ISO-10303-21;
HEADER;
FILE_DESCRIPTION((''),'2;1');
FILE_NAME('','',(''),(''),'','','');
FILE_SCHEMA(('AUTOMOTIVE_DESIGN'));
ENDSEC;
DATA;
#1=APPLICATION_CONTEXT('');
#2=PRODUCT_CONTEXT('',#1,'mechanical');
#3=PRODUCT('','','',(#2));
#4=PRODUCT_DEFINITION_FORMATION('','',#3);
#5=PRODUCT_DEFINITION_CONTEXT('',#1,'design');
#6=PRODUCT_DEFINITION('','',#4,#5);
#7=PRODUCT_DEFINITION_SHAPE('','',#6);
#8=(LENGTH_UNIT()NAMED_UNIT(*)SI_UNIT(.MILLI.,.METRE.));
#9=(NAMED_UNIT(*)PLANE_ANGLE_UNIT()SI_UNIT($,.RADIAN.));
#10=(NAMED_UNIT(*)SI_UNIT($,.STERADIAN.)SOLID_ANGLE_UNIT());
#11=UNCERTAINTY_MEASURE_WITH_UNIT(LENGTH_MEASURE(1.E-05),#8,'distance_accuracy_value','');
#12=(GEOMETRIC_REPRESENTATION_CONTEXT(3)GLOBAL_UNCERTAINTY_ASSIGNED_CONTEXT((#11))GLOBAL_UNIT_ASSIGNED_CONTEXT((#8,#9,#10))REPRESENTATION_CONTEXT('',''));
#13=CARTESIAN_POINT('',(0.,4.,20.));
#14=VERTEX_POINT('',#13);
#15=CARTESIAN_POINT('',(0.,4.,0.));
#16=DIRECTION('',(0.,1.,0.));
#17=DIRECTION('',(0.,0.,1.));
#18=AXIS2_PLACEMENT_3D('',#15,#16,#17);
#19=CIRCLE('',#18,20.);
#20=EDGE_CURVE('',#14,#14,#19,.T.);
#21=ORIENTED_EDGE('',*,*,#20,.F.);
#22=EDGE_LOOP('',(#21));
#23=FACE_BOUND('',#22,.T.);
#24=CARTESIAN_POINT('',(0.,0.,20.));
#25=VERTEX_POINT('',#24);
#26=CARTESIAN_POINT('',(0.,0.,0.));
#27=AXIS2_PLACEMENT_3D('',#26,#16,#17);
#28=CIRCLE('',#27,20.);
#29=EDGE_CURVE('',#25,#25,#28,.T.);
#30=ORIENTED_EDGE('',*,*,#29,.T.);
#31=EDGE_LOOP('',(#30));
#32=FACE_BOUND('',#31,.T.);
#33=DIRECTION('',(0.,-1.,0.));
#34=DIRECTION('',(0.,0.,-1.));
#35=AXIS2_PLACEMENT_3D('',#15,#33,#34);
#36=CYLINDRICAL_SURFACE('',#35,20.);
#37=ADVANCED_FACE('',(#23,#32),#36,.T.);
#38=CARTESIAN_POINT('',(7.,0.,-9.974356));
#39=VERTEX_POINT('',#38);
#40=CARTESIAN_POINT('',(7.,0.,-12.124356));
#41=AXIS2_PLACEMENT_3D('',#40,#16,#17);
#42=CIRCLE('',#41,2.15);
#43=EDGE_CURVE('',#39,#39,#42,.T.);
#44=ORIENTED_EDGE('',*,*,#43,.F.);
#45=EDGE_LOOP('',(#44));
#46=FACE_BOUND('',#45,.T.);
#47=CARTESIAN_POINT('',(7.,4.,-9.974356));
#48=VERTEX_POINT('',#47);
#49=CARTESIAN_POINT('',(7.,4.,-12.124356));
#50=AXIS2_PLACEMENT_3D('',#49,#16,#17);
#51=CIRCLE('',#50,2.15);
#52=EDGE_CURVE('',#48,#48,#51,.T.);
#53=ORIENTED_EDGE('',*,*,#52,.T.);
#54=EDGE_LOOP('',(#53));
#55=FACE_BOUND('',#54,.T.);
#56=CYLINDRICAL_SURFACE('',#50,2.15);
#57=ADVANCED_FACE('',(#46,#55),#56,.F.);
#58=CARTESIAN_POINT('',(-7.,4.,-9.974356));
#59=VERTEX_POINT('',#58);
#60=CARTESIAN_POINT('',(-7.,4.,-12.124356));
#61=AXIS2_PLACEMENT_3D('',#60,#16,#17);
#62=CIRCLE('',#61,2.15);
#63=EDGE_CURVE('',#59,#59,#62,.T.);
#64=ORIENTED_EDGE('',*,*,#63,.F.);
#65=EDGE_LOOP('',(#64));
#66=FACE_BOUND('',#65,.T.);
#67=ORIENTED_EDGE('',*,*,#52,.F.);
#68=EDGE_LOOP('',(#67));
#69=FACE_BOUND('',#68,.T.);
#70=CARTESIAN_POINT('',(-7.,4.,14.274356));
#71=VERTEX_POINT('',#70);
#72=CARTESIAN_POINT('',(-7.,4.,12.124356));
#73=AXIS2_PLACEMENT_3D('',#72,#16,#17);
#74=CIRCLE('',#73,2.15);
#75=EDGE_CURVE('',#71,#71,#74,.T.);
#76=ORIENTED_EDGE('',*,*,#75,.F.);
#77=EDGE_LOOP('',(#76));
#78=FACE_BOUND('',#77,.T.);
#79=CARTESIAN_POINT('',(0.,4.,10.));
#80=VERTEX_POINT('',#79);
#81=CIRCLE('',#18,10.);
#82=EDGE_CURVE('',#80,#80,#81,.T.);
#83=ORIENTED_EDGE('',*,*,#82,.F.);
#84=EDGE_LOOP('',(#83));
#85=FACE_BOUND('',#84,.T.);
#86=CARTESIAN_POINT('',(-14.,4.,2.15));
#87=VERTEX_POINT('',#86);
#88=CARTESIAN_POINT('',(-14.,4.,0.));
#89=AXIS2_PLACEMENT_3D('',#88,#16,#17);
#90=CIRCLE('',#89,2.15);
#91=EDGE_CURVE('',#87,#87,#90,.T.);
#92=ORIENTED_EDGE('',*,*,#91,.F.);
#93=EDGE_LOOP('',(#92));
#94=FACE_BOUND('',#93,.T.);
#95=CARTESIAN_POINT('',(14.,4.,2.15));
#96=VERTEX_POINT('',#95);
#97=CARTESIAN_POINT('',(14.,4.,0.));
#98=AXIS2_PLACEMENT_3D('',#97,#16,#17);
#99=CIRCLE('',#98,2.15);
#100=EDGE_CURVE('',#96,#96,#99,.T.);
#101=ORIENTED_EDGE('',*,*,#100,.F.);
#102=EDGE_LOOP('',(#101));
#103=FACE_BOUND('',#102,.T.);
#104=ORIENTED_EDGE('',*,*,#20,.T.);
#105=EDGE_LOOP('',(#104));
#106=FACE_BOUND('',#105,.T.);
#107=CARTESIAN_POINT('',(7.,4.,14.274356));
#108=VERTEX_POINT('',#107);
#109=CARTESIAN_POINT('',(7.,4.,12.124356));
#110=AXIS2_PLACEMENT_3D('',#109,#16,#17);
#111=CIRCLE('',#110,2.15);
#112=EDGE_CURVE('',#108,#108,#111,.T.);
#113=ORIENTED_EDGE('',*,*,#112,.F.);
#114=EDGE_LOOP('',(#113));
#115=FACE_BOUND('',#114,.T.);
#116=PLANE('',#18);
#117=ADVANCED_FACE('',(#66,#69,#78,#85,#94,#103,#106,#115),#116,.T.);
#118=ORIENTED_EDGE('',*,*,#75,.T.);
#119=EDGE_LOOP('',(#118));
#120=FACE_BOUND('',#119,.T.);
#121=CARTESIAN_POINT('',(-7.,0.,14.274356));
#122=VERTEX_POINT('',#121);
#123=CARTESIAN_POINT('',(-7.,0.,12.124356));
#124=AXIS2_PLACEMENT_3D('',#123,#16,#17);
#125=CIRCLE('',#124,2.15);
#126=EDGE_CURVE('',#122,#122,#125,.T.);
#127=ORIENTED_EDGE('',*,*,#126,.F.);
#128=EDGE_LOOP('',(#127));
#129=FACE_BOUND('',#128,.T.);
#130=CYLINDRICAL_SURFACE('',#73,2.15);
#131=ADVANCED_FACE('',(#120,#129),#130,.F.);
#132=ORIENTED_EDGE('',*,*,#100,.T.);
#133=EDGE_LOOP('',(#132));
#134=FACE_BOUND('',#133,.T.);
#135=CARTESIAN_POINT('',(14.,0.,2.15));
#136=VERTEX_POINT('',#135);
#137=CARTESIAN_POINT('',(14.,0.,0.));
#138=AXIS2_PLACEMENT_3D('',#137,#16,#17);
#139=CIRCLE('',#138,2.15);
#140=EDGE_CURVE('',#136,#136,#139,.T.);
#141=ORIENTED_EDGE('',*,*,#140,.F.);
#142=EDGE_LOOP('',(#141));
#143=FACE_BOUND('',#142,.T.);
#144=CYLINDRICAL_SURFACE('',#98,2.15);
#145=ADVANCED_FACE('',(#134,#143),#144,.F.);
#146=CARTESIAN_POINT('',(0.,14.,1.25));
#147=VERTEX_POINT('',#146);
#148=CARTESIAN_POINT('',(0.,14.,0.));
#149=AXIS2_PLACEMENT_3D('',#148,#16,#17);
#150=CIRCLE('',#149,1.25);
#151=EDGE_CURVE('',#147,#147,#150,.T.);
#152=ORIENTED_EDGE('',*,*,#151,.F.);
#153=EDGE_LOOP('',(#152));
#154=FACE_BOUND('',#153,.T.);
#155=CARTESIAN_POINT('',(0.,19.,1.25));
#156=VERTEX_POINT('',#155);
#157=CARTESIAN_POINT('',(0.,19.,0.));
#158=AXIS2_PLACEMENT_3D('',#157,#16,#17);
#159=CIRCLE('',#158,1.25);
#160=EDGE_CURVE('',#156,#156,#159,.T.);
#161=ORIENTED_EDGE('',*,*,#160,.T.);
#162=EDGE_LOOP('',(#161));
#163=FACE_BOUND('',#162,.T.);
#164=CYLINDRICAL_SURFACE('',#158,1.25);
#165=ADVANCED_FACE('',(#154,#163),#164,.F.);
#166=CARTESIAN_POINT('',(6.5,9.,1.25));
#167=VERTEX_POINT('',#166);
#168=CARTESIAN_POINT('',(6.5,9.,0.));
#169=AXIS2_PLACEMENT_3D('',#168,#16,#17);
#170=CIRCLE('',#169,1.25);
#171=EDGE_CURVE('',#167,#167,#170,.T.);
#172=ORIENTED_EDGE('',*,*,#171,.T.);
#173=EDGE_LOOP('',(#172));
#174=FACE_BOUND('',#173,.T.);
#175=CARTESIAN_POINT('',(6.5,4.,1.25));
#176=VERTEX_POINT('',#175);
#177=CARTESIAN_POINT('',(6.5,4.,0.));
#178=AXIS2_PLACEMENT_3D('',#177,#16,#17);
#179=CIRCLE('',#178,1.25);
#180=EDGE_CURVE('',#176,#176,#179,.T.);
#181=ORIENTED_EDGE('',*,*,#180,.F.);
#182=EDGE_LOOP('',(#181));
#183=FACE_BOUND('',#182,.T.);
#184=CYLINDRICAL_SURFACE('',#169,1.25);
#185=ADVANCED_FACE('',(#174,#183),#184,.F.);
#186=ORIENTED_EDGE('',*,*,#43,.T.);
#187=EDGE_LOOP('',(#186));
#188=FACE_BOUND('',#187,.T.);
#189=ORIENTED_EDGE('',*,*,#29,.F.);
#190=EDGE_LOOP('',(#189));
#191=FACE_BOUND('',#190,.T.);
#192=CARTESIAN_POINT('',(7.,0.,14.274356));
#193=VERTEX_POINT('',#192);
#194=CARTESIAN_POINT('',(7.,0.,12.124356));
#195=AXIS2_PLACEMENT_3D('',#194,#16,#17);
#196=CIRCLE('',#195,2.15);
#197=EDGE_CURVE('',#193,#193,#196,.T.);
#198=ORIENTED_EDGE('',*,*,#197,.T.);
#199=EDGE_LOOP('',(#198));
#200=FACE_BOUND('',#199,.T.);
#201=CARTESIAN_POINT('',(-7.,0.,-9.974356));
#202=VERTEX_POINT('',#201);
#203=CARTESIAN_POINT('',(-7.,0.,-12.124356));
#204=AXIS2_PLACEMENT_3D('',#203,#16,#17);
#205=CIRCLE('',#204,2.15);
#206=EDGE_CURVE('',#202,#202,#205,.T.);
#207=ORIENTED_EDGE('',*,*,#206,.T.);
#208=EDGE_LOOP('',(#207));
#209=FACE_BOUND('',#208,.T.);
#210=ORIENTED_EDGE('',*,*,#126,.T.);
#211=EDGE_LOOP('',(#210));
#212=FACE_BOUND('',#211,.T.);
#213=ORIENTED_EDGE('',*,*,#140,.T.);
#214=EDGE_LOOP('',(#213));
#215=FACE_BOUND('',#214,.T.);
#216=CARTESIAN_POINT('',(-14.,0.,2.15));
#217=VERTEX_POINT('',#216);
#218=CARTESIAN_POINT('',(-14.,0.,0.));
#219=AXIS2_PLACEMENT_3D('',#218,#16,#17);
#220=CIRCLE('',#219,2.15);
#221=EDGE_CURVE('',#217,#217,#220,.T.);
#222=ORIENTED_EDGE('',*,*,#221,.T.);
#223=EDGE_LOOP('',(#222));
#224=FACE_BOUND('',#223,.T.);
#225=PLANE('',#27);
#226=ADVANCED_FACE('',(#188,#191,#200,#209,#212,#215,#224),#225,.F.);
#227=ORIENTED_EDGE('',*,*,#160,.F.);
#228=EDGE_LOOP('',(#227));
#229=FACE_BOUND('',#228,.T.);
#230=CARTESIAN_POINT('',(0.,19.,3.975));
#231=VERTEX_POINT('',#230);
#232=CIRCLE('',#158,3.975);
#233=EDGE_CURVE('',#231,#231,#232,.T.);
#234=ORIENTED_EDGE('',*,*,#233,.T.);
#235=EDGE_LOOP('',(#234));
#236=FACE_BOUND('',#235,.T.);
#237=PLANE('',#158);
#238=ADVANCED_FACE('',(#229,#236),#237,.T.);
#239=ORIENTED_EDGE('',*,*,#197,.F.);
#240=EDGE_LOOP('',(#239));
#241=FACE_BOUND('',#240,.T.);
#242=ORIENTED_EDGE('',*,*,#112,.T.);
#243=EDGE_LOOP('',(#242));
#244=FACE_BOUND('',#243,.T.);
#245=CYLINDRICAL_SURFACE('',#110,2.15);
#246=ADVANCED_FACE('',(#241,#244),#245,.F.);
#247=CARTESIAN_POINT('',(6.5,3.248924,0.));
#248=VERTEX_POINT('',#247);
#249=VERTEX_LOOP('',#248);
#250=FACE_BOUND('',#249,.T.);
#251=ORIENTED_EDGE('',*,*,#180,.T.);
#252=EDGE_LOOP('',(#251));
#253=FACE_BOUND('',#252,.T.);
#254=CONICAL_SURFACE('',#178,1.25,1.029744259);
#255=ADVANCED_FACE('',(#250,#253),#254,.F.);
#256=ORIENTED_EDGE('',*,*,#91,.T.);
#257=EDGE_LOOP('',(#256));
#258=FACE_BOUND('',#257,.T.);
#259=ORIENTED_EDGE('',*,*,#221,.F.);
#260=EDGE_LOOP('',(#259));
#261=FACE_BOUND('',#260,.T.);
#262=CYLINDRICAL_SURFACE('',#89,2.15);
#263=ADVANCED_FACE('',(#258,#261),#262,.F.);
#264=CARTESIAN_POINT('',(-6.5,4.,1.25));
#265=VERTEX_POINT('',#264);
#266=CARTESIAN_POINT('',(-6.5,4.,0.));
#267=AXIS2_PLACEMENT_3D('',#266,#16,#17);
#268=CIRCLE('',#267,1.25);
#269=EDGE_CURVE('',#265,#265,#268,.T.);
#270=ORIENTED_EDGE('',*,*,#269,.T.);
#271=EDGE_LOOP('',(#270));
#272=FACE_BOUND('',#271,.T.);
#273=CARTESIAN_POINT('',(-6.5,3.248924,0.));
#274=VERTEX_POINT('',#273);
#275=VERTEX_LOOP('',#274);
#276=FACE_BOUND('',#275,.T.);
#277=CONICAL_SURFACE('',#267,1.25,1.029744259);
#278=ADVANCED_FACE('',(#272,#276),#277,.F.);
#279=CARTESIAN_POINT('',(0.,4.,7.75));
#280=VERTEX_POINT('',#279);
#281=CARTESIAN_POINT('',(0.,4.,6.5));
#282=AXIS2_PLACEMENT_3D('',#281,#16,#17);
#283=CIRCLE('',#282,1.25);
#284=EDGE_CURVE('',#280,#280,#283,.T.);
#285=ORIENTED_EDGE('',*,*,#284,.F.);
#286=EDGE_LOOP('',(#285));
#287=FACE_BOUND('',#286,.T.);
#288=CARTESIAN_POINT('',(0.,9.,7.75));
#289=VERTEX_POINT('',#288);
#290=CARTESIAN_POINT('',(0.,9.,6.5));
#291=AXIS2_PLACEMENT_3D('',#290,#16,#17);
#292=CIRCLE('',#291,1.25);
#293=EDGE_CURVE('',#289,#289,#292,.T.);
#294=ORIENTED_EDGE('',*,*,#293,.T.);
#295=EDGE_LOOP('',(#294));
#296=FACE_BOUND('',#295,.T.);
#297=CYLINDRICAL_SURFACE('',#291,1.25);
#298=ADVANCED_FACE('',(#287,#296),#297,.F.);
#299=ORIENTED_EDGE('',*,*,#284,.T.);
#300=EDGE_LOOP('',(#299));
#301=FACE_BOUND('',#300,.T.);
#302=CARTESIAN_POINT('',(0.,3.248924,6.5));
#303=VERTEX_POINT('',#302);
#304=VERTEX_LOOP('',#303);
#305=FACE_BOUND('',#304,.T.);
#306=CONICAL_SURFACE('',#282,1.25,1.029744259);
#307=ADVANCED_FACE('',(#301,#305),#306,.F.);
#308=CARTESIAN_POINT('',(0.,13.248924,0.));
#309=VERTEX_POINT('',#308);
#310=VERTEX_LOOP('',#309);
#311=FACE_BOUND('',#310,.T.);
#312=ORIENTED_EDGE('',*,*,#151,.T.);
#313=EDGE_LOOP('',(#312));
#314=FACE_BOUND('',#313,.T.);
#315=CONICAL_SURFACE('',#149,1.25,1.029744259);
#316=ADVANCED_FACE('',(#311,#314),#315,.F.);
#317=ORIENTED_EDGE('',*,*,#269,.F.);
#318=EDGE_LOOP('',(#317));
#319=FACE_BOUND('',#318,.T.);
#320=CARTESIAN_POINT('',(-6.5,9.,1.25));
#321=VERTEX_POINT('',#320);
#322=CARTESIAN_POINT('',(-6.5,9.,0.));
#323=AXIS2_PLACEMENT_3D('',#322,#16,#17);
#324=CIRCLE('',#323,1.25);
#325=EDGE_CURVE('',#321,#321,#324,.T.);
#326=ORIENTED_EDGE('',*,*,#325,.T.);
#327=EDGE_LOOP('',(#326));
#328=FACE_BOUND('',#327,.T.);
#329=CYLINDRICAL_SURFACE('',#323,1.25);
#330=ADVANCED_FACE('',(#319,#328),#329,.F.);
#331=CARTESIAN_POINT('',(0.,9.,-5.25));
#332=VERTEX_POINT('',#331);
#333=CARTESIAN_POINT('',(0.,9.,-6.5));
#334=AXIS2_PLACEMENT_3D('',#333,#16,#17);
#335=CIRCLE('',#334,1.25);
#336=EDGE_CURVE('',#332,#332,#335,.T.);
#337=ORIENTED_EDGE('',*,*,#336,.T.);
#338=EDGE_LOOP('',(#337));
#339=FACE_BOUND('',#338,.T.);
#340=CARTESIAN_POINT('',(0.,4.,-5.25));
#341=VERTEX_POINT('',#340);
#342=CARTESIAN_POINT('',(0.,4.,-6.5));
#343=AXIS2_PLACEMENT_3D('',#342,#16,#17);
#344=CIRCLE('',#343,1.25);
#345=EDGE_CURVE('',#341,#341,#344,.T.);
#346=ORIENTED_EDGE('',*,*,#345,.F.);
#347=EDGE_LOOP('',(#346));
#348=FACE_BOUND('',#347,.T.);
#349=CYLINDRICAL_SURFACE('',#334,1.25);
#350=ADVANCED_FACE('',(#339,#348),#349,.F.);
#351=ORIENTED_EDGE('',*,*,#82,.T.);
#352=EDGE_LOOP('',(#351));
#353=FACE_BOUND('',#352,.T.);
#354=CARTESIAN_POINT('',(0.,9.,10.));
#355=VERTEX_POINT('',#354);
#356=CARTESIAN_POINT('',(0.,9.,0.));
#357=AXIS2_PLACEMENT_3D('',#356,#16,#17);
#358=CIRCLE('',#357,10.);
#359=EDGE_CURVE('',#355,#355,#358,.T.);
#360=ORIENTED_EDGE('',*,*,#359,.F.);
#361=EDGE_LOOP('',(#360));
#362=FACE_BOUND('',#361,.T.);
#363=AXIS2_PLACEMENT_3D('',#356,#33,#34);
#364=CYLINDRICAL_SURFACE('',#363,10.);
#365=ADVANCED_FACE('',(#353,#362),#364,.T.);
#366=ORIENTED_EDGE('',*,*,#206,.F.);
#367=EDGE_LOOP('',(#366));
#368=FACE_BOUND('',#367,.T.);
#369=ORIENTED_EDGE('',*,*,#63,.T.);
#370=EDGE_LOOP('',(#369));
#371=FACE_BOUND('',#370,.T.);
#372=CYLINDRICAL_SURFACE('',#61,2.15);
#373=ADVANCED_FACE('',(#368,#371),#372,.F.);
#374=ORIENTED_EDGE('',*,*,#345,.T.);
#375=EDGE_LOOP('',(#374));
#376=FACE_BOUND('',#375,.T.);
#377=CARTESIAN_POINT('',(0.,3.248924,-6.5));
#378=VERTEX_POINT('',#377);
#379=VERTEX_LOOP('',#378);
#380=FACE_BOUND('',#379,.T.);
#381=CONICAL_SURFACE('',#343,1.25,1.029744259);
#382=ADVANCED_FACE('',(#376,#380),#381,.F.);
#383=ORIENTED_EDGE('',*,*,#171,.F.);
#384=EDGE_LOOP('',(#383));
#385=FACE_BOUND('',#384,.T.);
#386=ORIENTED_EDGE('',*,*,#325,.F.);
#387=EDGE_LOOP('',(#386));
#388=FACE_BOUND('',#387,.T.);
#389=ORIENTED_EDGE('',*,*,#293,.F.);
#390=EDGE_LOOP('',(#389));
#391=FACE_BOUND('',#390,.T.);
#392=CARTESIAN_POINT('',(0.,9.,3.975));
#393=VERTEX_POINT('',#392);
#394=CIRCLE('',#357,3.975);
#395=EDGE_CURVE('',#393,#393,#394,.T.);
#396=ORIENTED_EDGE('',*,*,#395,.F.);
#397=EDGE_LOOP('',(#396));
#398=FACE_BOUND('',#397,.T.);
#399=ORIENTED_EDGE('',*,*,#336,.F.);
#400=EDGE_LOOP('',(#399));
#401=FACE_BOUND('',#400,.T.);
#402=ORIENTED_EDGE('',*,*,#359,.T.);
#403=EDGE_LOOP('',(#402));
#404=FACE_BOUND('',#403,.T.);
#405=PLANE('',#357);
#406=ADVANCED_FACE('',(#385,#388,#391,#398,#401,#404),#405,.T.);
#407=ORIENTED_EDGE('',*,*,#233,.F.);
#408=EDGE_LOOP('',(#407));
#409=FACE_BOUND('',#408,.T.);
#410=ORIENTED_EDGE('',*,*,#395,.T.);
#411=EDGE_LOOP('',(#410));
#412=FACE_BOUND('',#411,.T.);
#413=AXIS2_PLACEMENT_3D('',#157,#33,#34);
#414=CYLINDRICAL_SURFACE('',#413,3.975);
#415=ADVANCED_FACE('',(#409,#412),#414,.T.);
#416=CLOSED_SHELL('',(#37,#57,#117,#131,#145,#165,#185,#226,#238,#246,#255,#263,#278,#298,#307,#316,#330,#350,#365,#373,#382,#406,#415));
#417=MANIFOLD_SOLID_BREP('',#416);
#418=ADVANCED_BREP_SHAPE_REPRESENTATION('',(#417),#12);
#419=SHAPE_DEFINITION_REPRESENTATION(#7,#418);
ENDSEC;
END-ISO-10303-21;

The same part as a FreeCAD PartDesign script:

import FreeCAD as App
import Part
import Sketcher

doc = App.newDocument("Part")
body = doc.addObject("PartDesign::Body", "Body")

# Sketch on XZ plane
sketch1 = body.newObject("Sketcher::SketchObject", "Sketch")
sketch1.AttachmentSupport = (doc.getObject("XZ_Plane"), [""])
sketch1.MapMode = "FlatFace"
sketch1.addGeometry(Part.Circle(App.Vector(0, 0, 0), App.Vector(0, 0, 1), 20), False)
sketch1.addConstraint(Sketcher.Constraint("Coincident", 0, 3, -1, 1))
sketch1.addConstraint(Sketcher.Constraint("Diameter", 0, 40.0))
pad1 = body.newObject("PartDesign::Pad", "Pad")
pad1.Profile = sketch1
pad1.Length = 4
pad1.Reversed = True

# Sketch on XZ plane
sketch2 = body.newObject("Sketcher::SketchObject", "Sketch001")
sketch2.AttachmentSupport = (doc.getObject("XZ_Plane"), [""])
sketch2.MapMode = "FlatFace"
sketch2.AttachmentOffset = App.Placement(App.Vector(0, 0, -4), App.Rotation())
sketch2.addGeometry(Part.Circle(App.Vector(0, 0, 0), App.Vector(0, 0, 1), 10), False)
sketch2.addConstraint(Sketcher.Constraint("Coincident", 0, 3, -1, 1))
sketch2.addConstraint(Sketcher.Constraint("Diameter", 0, 20.0))
pad2 = body.newObject("PartDesign::Pad", "Pad001")
pad2.Profile = sketch2
pad2.Length = 5
pad2.Reversed = True

# Sketch on XZ plane
sketch3 = body.newObject("Sketcher::SketchObject", "Sketch002")
sketch3.AttachmentSupport = (doc.getObject("XZ_Plane"), [""])
sketch3.MapMode = "FlatFace"
sketch3.AttachmentOffset = App.Placement(App.Vector(0, 0, -9), App.Rotation())
sketch3.addGeometry(Part.Circle(App.Vector(0, 0, 0), App.Vector(0, 0, 1), 4), False)
sketch3.addConstraint(Sketcher.Constraint("Coincident", 0, 3, -1, 1))
sketch3.addConstraint(Sketcher.Constraint("Diameter", 0, 7.95))
pad3 = body.newObject("PartDesign::Pad", "Pad002")
pad3.Profile = sketch3
pad3.Length = 10
pad3.Reversed = True

# Sketch on XZ plane
sketch4 = body.newObject("Sketcher::SketchObject", "Sketch003")
sketch4.AttachmentSupport = (doc.getObject("XZ_Plane"), [""])
sketch4.MapMode = "FlatFace"
sketch4.AttachmentOffset = App.Placement(App.Vector(0, 0, -4), App.Rotation())
sketch4.addGeometry(Part.Circle(App.Vector(-14, 0, 0), App.Vector(0, 0, 1), 2.1), False)
sketch4.addGeometry(Part.Circle(App.Vector(-7, -12.1, 0), App.Vector(0, 0, 1), 2.1), False)
sketch4.addGeometry(Part.Circle(App.Vector(7, -12.1, 0), App.Vector(0, 0, 1), 2.1), False)
sketch4.addGeometry(Part.Circle(App.Vector(14, 0, 0), App.Vector(0, 0, 1), 2.1), False)
sketch4.addGeometry(Part.Circle(App.Vector(7, 12.1, 0), App.Vector(0, 0, 1), 2.1), False)
sketch4.addGeometry(Part.Circle(App.Vector(-7, 12.1, 0), App.Vector(0, 0, 1), 2.1), False)
sketch4.addConstraint(Sketcher.Constraint("Equal", 0, 1))
sketch4.addConstraint(Sketcher.Constraint("Equal", 1, 2))
sketch4.addConstraint(Sketcher.Constraint("Equal", 2, 3))
sketch4.addConstraint(Sketcher.Constraint("Equal", 3, 4))
sketch4.addConstraint(Sketcher.Constraint("Equal", 4, 5))
sketch4.addConstraint(Sketcher.Constraint("Symmetric", 0, 3, 3, 3, -1, 1))
sketch4.addConstraint(Sketcher.Constraint("Symmetric", 1, 3, 4, 3, -1, 1))
sketch4.addConstraint(Sketcher.Constraint("Symmetric", 2, 3, 5, 3, -1, 1))
sketch4.addConstraint(Sketcher.Constraint("Symmetric", 1, 3, 2, 3, -2))
sketch4.addConstraint(Sketcher.Constraint("PointOnObject", 0, 3, -1))
sketch4.addConstraint(Sketcher.Constraint("Diameter", 0, 4.3))
sketch4.addConstraint(Sketcher.Constraint("DistanceX", 0, 3, -1, 1, 14.0))
sketch4.addConstraint(Sketcher.Constraint("DistanceX", 1, 3, -1, 1, 7.0))
sketch4.addConstraint(Sketcher.Constraint("DistanceY", 2, 3, 4, 3, 24.248711))
doc.recompute()
hole = body.newObject("PartDesign::Hole", "Hole")
hole.Profile = sketch4
hole.ThreadType = "None"
hole.Diameter = 4.3
hole.DepthType = "ThroughAll"
hole.Reversed = True

# Sketch on XZ plane
sketch5 = body.newObject("Sketcher::SketchObject", "Sketch004")
sketch5.AttachmentSupport = (doc.getObject("XZ_Plane"), [""])
sketch5.MapMode = "FlatFace"
sketch5.AttachmentOffset = App.Placement(App.Vector(0, 0, -9), App.Rotation())
sketch5.addGeometry(Part.Circle(App.Vector(-6.5, 0, 0), App.Vector(0, 0, 1), 1.2), False)
sketch5.addGeometry(Part.Circle(App.Vector(0, -6.5, 0), App.Vector(0, 0, 1), 1.2), False)
sketch5.addGeometry(Part.Circle(App.Vector(6.5, 0, 0), App.Vector(0, 0, 1), 1.2), False)
sketch5.addGeometry(Part.Circle(App.Vector(0, 6.5, 0), App.Vector(0, 0, 1), 1.2), False)
sketch5.addConstraint(Sketcher.Constraint("Equal", 0, 1))
sketch5.addConstraint(Sketcher.Constraint("Equal", 1, 2))
sketch5.addConstraint(Sketcher.Constraint("Equal", 2, 3))
sketch5.addConstraint(Sketcher.Constraint("Symmetric", 0, 3, 2, 3, -1, 1))
sketch5.addConstraint(Sketcher.Constraint("Symmetric", 1, 3, 3, 3, -1, 1))
sketch5.addConstraint(Sketcher.Constraint("PointOnObject", 0, 3, -1))
sketch5.addConstraint(Sketcher.Constraint("PointOnObject", 1, 3, -2))
sketch5.addConstraint(Sketcher.Constraint("Diameter", 0, 2.5))
sketch5.addConstraint(Sketcher.Constraint("DistanceX", 0, 3, 2, 3, 13.0))
sketch5.addConstraint(Sketcher.Constraint("DistanceY", 1, 3, 3, 3, 13.0))
doc.recompute()
hole2 = body.newObject("PartDesign::Hole", "Hole001")
hole2.Profile = sketch5
hole2.ThreadType = "None"
hole2.Diameter = 2.5
hole2.DepthType = "Dimension"
hole2.Depth = 5
hole2.DrillPoint = "Angled"
hole2.DrillPointAngle = 118
hole2.Reversed = True

# Sketch on XZ plane
sketch6 = body.newObject("Sketcher::SketchObject", "Sketch005")
sketch6.AttachmentSupport = (doc.getObject("XZ_Plane"), [""])
sketch6.MapMode = "FlatFace"
sketch6.AttachmentOffset = App.Placement(App.Vector(0, 0, -19), App.Rotation())
sketch6.addGeometry(Part.Circle(App.Vector(0, 0, 0), App.Vector(0, 0, 1), 1.2), False)
sketch6.addConstraint(Sketcher.Constraint("Coincident", 0, 3, -1, 1))
sketch6.addConstraint(Sketcher.Constraint("Diameter", 0, 2.5))
doc.recompute()
hole3 = body.newObject("PartDesign::Hole", "Hole002")
hole3.Profile = sketch6
hole3.ThreadType = "None"
hole3.Diameter = 2.5
hole3.DepthType = "Dimension"
hole3.Depth = 5
hole3.DrillPoint = "Angled"
hole3.DrillPointAngle = 118
hole3.Reversed = True

doc.recompute()
